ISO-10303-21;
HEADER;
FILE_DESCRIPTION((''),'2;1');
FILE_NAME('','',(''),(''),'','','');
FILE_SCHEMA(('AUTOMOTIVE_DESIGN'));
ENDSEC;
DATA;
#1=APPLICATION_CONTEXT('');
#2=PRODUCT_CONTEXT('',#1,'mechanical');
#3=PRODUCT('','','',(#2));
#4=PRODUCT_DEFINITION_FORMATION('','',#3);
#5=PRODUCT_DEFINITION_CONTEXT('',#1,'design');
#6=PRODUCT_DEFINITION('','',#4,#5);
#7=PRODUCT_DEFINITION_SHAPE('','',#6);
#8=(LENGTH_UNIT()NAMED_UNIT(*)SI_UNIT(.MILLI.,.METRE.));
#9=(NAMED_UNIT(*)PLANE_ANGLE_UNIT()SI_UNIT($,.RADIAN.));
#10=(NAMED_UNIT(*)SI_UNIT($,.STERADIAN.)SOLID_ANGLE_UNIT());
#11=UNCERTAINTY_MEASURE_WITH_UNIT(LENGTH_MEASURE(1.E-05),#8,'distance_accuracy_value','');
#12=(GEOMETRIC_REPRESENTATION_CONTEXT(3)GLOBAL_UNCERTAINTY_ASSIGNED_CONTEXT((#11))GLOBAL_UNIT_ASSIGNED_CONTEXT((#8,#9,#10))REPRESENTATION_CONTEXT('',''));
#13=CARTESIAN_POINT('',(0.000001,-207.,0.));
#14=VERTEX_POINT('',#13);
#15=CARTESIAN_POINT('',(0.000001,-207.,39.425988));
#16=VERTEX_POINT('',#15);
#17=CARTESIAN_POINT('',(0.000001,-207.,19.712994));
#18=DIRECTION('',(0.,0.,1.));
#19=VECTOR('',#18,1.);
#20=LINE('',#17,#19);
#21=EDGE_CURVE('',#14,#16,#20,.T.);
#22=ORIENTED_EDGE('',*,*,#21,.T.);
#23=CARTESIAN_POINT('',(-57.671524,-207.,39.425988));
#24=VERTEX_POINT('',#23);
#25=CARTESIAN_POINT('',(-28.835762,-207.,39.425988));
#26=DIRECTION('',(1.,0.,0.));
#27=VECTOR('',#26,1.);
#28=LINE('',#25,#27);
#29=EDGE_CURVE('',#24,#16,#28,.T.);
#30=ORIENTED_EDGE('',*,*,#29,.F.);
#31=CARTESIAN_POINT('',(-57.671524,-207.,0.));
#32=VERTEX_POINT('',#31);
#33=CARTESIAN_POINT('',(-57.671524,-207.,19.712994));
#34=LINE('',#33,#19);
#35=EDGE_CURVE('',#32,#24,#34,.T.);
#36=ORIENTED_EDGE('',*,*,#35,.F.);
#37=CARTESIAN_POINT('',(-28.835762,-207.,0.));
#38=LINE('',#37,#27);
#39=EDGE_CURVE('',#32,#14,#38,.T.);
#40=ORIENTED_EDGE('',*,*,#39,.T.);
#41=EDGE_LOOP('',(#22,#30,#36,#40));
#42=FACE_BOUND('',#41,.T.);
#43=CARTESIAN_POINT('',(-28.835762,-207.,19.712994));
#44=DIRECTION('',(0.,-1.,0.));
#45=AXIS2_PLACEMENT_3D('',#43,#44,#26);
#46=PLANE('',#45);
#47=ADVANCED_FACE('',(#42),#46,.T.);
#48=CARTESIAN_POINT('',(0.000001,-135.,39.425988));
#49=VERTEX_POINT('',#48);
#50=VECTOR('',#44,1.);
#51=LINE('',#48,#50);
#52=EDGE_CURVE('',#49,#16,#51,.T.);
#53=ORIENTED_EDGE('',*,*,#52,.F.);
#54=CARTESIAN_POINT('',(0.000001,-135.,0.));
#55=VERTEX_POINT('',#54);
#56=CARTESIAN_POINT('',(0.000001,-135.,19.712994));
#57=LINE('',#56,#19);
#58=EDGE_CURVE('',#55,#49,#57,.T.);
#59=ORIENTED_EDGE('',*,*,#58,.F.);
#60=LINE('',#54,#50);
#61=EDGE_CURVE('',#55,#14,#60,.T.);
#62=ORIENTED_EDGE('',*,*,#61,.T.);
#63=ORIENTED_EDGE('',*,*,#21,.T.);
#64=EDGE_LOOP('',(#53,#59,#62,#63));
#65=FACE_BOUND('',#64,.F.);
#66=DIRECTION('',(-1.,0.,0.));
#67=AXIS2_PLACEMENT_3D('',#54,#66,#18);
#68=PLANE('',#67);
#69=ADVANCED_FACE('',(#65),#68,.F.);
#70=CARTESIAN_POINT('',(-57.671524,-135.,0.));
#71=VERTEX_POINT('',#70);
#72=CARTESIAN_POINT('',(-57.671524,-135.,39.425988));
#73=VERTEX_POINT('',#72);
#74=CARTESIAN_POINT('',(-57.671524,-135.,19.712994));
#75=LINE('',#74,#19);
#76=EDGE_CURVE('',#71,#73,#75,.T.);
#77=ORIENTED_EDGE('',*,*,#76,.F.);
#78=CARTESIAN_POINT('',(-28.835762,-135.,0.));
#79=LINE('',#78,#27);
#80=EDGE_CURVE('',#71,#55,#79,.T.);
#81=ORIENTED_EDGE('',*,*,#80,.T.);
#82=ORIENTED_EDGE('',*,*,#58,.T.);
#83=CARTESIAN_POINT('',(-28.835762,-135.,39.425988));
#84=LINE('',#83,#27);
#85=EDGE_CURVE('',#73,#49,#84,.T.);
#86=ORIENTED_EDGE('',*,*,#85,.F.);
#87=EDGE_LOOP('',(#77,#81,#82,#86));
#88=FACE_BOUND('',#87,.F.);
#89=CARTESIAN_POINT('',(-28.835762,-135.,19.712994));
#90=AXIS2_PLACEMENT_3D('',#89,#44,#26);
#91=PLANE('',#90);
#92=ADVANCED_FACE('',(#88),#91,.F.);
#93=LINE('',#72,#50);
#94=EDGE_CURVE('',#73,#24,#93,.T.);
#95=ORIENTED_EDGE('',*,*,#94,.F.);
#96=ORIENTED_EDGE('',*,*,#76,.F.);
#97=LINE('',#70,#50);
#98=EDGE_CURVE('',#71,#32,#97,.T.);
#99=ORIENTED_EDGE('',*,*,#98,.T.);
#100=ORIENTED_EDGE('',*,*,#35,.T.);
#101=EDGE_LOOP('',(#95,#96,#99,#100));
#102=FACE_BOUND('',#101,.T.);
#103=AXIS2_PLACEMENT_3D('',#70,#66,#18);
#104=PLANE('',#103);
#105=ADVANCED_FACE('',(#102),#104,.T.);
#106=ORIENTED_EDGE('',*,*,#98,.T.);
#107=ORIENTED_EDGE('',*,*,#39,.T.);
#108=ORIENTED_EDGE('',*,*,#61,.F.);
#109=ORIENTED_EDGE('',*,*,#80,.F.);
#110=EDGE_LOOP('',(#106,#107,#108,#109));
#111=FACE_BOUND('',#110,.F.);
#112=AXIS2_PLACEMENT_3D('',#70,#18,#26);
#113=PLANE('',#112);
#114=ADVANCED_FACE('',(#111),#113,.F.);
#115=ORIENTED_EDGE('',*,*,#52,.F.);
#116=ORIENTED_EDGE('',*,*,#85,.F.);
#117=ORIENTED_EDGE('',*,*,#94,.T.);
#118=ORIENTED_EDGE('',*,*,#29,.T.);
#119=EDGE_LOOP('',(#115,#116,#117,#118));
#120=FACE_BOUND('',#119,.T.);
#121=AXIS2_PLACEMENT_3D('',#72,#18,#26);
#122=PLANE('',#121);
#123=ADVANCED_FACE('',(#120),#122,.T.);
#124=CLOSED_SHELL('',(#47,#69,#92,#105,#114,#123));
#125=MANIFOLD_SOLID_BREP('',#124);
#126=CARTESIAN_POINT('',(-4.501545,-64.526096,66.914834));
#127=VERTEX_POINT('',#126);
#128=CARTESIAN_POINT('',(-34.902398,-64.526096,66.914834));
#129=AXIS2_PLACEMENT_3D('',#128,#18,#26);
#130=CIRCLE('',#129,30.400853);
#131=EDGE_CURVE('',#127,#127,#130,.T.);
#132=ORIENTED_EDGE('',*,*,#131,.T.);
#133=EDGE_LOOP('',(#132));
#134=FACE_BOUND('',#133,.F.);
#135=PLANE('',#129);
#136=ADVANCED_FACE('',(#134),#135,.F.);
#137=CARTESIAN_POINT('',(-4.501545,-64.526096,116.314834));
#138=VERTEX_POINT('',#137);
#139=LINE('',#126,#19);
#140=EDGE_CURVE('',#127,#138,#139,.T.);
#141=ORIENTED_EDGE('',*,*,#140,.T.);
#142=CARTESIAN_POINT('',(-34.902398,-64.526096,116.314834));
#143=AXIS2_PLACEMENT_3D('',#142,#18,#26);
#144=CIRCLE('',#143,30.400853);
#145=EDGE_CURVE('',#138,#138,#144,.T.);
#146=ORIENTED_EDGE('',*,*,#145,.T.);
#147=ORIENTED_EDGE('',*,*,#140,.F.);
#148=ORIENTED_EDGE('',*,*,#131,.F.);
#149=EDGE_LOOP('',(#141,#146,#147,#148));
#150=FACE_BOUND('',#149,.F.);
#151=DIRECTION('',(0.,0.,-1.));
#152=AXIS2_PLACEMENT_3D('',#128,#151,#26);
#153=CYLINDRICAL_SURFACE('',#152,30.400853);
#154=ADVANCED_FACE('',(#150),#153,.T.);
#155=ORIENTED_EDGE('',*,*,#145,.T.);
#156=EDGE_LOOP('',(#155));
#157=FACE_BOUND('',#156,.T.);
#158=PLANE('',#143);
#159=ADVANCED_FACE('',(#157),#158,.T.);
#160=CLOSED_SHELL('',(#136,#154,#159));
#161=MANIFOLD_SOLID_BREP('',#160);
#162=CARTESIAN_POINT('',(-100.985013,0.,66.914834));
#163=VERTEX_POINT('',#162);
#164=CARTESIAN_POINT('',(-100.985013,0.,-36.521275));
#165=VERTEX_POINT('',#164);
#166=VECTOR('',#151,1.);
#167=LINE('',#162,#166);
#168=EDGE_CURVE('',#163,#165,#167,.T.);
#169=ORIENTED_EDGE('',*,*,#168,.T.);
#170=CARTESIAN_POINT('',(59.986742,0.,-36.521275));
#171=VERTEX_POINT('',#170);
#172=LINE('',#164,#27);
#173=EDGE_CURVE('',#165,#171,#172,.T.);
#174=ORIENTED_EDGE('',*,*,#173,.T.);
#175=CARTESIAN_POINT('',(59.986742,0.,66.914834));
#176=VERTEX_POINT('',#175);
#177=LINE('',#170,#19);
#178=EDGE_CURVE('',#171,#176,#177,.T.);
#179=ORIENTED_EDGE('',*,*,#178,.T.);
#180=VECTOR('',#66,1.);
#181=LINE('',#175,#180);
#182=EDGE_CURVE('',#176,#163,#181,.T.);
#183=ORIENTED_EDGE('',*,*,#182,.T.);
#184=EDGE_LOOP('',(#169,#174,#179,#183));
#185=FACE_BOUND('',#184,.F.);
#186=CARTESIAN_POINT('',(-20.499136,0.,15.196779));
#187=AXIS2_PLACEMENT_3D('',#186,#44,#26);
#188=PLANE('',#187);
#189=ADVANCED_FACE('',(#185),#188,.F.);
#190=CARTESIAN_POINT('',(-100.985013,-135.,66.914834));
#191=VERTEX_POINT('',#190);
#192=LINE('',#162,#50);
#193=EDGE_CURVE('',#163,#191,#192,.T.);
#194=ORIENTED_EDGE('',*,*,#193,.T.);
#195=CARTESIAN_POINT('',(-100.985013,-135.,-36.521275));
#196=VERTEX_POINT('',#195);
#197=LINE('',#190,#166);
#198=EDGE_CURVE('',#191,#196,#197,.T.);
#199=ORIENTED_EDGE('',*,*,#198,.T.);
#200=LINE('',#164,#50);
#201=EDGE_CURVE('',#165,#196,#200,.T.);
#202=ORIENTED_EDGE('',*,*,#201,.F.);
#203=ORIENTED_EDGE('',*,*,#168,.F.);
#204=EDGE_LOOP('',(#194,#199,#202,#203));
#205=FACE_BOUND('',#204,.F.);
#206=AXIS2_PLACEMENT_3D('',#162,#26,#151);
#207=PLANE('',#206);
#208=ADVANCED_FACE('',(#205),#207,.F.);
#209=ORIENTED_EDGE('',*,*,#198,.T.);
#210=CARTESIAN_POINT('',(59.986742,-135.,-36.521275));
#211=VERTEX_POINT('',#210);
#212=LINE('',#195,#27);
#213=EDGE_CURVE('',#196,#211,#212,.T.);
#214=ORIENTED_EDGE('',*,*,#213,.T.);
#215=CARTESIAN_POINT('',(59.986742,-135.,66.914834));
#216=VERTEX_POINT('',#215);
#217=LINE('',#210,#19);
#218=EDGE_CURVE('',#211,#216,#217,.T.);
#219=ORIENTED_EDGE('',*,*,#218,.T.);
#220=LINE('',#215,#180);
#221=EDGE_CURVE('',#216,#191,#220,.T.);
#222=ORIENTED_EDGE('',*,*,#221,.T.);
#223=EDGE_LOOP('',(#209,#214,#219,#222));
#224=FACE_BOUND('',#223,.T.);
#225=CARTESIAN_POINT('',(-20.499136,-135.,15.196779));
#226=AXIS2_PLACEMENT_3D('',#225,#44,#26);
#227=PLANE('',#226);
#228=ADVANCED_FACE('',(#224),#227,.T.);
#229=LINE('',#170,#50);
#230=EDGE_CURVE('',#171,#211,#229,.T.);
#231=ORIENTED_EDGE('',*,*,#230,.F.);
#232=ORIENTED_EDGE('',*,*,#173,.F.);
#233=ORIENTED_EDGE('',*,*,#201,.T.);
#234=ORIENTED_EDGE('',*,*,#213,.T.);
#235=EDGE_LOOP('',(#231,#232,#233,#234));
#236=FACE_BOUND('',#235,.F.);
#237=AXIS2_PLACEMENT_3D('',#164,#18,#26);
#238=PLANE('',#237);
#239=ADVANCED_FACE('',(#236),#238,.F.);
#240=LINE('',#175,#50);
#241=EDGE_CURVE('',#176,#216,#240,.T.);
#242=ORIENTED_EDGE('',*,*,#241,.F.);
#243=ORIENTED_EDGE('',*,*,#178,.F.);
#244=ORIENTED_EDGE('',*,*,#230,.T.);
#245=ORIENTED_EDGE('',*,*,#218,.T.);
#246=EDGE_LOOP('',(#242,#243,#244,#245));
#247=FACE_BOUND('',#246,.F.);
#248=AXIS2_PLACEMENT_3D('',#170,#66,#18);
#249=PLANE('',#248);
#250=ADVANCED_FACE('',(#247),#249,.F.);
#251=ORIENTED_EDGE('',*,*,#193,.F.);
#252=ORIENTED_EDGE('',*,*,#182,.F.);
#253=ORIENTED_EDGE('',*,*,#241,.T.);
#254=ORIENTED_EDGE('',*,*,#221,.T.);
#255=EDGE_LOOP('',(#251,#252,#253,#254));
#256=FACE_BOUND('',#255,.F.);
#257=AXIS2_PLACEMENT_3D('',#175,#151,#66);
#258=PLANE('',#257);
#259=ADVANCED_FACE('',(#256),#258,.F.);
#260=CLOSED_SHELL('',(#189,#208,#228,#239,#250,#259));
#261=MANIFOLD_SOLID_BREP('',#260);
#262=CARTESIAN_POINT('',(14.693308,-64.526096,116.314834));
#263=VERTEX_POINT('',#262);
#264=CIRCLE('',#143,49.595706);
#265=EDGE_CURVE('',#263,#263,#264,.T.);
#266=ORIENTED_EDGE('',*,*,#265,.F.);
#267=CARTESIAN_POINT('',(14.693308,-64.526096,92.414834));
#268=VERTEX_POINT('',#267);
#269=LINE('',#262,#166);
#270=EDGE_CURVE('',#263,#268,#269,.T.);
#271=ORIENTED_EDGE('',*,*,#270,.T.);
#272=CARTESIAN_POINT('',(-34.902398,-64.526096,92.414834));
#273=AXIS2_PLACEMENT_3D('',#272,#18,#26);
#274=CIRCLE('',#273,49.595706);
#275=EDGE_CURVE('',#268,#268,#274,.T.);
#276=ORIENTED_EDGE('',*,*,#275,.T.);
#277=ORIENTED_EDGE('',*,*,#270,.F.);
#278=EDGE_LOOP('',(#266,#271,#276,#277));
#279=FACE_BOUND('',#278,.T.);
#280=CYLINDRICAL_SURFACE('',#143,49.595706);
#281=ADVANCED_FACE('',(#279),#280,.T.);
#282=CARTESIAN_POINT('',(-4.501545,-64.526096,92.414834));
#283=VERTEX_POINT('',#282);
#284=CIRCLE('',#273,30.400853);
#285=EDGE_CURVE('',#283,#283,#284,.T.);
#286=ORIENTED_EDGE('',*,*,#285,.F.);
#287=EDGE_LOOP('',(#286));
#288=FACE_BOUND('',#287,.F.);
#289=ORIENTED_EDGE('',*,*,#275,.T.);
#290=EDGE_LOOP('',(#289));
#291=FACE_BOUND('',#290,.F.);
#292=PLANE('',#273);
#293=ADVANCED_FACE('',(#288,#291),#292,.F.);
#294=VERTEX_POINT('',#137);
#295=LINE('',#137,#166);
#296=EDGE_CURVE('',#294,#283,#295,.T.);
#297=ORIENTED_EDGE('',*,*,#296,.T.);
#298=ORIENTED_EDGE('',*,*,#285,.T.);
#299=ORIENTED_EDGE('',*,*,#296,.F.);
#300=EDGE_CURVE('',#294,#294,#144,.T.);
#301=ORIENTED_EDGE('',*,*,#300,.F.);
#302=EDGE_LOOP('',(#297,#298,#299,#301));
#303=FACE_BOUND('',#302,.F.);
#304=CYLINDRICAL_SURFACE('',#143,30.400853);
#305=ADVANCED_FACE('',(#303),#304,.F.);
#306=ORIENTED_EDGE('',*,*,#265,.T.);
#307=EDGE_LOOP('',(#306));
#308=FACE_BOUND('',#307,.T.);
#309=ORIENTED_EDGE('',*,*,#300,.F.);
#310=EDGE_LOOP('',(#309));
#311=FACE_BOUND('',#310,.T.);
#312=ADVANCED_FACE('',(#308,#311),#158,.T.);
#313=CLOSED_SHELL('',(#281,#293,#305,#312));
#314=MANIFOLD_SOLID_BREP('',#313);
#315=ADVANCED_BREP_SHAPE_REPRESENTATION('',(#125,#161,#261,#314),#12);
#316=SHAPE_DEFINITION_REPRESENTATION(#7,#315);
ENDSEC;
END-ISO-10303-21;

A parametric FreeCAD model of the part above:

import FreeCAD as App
import Part
import Sketcher
from FreeCAD import Vector

doc = App.newDocument("Part")
body = doc.addObject("PartDesign::Body", "Body")

sketch1 = body.newObject("Sketcher::SketchObject", "Sketch")
sketch1.AttachmentSupport = (doc.getObject("XZ_Plane"), [""])
sketch1.MapMode = "FlatFace"
sketch1.addGeometry([
    Part.LineSegment(Vector(60, 67, 0), Vector(-101, 67, 0)),
    Part.LineSegment(Vector(-101, 67, 0), Vector(-101, -37, 0)),
    Part.LineSegment(Vector(-101, -37, 0), Vector(60, -37, 0)),
    Part.LineSegment(Vector(60, -37, 0), Vector(60, 67, 0)),
], False)
sketch1.addConstraint([
    Sketcher.Constraint("Coincident", 0, 2, 1, 1),
    Sketcher.Constraint("Coincident", 1, 2, 2, 1),
    Sketcher.Constraint("Coincident", 2, 2, 3, 1),
    Sketcher.Constraint("Coincident", 3, 2, 0, 1),
    Sketcher.Constraint("Horizontal", 0),
    Sketcher.Constraint("Vertical", 1),
    Sketcher.Constraint("Horizontal", 2),
    Sketcher.Constraint("Vertical", 3),
    Sketcher.Constraint("DistanceY", 1, 2, 1, 1, 103.436109),
    Sketcher.Constraint("DistanceX", 0, 2, 0, 1, 160.971755),
    Sketcher.Constraint("DistanceX", 0, 2, -1, 1, 100.985013),
    Sketcher.Constraint("DistanceY", -1, 1, 0, 2, 66.914834),
])
pad1 = body.newObject("PartDesign::Pad", "Pad")
pad1.Profile = sketch1
pad1.Length = 135
body2 = doc.addObject("PartDesign::Body", "Body001")

sketch2 = body2.newObject("Sketcher::SketchObject", "Sketch001")
sketch2.AttachmentSupport = (doc.getObject("XZ_Plane001"), [""])
sketch2.MapMode = "FlatFace"
sketch2.AttachmentOffset = App.Placement(Vector(0, 0, 135), App.Rotation())
sketch2.addGeometry([
    Part.LineSegment(Vector(-58, 39, 0), Vector(-58, 0, 0)),
    Part.LineSegment(Vector(-58, 0, 0), Vector(0, 0, 0)),
    Part.LineSegment(Vector(0, 0, 0), Vector(0, 39, 0)),
    Part.LineSegment(Vector(0, 39, 0), Vector(-58, 39, 0)),
], False)
sketch2.addConstraint([
    Sketcher.Constraint("Coincident", 0, 2, 1, 1),
    Sketcher.Constraint("Coincident", 1, 2, 2, 1),
    Sketcher.Constraint("Coincident", 2, 2, 3, 1),
    Sketcher.Constraint("Coincident", 3, 2, 0, 1),
    Sketcher.Constraint("Vertical", 0),
    Sketcher.Constraint("Horizontal", 1),
    Sketcher.Constraint("Vertical", 2),
    Sketcher.Constraint("Horizontal", 3),
    Sketcher.Constraint("Coincident", 1, 2, -1, 1),
    Sketcher.Constraint("DistanceX", 1, 1, 1, 2, 57.671525),
    Sketcher.Constraint("DistanceY", 0, 2, 0, 1, 39.425988),
])
pad2 = body2.newObject("PartDesign::Pad", "Pad001")
pad2.Profile = sketch2
pad2.Length = 72
body3 = doc.addObject("PartDesign::Body", "Body002")

sketch3 = body3.newObject("Sketcher::SketchObject", "Sketch002")
sketch3.AttachmentSupport = (doc.getObject("XY_Plane002"), [""])
sketch3.MapMode = "FlatFace"
sketch3.AttachmentOffset = App.Placement(Vector(0, 0, 66.914834), App.Rotation())
sketch3.addGeometry(Part.Circle(Vector(-35, -65, 0), Vector(0, 0, 1), 30), False)
sketch3.addConstraint([
    Sketcher.Constraint("Diameter", 0, 60.801706),
    Sketcher.Constraint("DistanceX", 0, 3, -1, 1, 34.902398),
    Sketcher.Constraint("DistanceY", 0, 3, -1, 1, 64.526096),
])
pad3 = body3.newObject("PartDesign::Pad", "Pad002")
pad3.Profile = sketch3
pad3.Length = 49.4
body4 = doc.addObject("PartDesign::Body", "Body003")

sketch4 = body4.newObject("Sketcher::SketchObject", "Sketch003")
sketch4.AttachmentSupport = (doc.getObject("XY_Plane003"), [""])
sketch4.MapMode = "FlatFace"
sketch4.AttachmentOffset = App.Placement(Vector(0, 0, 116.314834), App.Rotation())
sketch4.addGeometry([
    Part.Circle(Vector(-35, -65, 0), Vector(0, 0, 1), 50),
    Part.Circle(Vector(-35, -65, 0), Vector(0, 0, 1), 30),
], False)
sketch4.addConstraint([
    Sketcher.Constraint("Coincident", 1, 3, 0, 3),
    Sketcher.Constraint("Diameter", 0, 99.191412),
    Sketcher.Constraint("Diameter", 1, 60.801706),
    Sketcher.Constraint("DistanceX", 0, 3, -1, 1, 34.902398),
    Sketcher.Constraint("DistanceY", 0, 3, -1, 1, 64.526096),
])
pad4 = body4.newObject("PartDesign::Pad", "Pad003")
pad4.Profile = sketch4
pad4.Length = 23.9
pad4.Reversed = True

doc.recompute()
